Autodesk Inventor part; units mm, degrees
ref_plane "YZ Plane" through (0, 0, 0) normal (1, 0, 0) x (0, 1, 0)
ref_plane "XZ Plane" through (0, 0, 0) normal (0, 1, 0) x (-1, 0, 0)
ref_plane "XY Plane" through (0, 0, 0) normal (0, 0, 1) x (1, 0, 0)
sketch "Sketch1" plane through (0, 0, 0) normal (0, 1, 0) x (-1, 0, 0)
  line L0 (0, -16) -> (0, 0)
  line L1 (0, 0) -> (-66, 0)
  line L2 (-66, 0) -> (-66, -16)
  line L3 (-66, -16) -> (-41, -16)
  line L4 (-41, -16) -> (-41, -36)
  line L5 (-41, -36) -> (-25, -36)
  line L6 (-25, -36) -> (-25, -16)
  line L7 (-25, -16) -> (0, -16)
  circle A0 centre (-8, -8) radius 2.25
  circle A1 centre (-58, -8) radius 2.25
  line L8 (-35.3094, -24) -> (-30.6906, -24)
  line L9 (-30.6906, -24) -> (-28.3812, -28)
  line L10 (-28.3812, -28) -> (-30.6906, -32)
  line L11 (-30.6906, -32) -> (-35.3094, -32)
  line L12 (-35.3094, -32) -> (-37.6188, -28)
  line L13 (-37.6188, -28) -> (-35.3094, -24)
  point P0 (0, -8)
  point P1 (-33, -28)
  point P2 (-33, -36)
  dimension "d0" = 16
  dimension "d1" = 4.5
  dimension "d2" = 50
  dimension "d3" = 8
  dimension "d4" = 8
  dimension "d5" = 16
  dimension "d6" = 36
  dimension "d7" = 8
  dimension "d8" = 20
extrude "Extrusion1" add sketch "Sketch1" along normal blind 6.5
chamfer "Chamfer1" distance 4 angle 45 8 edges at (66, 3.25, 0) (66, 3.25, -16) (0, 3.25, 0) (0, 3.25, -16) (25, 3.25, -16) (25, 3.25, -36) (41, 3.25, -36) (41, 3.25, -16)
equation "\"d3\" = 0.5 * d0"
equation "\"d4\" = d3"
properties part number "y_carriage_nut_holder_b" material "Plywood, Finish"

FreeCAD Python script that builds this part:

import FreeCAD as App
import Part
import Sketcher
from FreeCAD import Vector
Q = App.Units.Quantity


def edges_at(feature, points):
    """Names of the edges that pass closest to the given points."""
    edges = feature.Shape.Edges
    near = lambda p: min(range(len(edges)), key=lambda i: edges[i].distToShape(Part.Vertex(*p))[0])
    return sorted({f"Edge{near(p) + 1}" for p in points})


def add_polygon(sketch, points):
    """Adds a closed chain of lines whose ends are joined by coincident constraints."""
    first, n = sketch.GeometryCount, len(points)
    for a, b in zip(points, points[1:] + points[:1]):
        sketch.addGeometry(Part.LineSegment(App.Vector(*a, 0), App.Vector(*b, 0)), False)
    for i in range(n):
        sketch.addConstraint(Sketcher.Constraint("Coincident", first + i, 2, first + (i + 1) % n, 1))

doc = App.newDocument("Part")
body = doc.addObject("PartDesign::Body", "Body")

# Sketch on XZ plane
sketch1 = body.newObject("Sketcher::SketchObject", "Sketch")
sketch1.AttachmentSupport = (doc.getObject("XZ_Plane"), [""])
sketch1.MapMode = "FlatFace"
add_polygon(sketch1, [(25, -16), (0, -16), (0, 0), (66, 0), (66, -16), (41, -16), (41, -36), (25, -36)])  # lines 0-7
add_polygon(sketch1, [(37.6, -28), (35.3, -24), (30.7, -24), (28.4, -28), (30.7, -32), (35.3, -32)])  # lines 8-13
sketch1.addGeometry(Part.Circle(Vector(58, -8, 0), Vector(0, 0, 1), 2.2), False)  # 14
sketch1.addGeometry(Part.Circle(Vector(8, -8, 0), Vector(0, 0, 1), 2.2), False)  # 15
sketch1.addConstraint([
    Sketcher.Constraint("Horizontal", 0),
    Sketcher.Constraint("Vertical", 1),
    Sketcher.Constraint("Horizontal", 2),
    Sketcher.Constraint("Vertical", 3),
    Sketcher.Constraint("Horizontal", 4),
    Sketcher.Constraint("Vertical", 5),
    Sketcher.Constraint("Horizontal", 6),
    Sketcher.Constraint("Vertical", 7),
    Sketcher.Constraint("Horizontal", 9),
    Sketcher.Constraint("Horizontal", 12),
    Sketcher.Constraint("Coincident", 1, 2, -1, 1),
    Sketcher.Constraint("Equal", 14, 15),
    Sketcher.Constraint("Parallel", 8, 11),
    Sketcher.Constraint("Parallel", 10, 13),
    Sketcher.Constraint("Horizontal", 14, 3, 15, 3),
    Sketcher.Constraint("Horizontal", 0, 2, 3, 2),
    Sketcher.Constraint("Horizontal", 10, 2, 13, 2),
    Sketcher.Constraint("Vertical", 9, 2, 11, 2),
    Sketcher.Constraint("Vertical", 8, 2, 12, 2),
    Sketcher.Constraint("Equal", 0, 4),
    Sketcher.Constraint("Equal", 6, 1),
    Sketcher.Constraint("Diameter", 14, Q("4.5 mm")),
    Sketcher.Constraint("DistanceX", 6, 2, 6, 1, Q("16 mm")),
    Sketcher.Constraint("DistanceY", 5, 2, 5, 1, Q("20 mm")),
    Sketcher.Constraint("DistanceY", 14, 3, -1, 1, Q("8 mm")),
    Sketcher.Constraint("DistanceX", -1, 1, 15, 3, Q("8 mm")),
    Sketcher.Constraint("DistanceX", 15, 3, 14, 3, Q("50 mm")),
    Sketcher.Constraint("DistanceX", 14, 3, 2, 2, Q("8 mm")),
    Sketcher.Constraint("DistanceY", 8, 2, 4, 2, Q("8 mm")),
    Sketcher.Constraint("DistanceY", 6, 2, 10, 2, Q("8 mm")),
    Sketcher.Constraint("Angle", 8, Q("120 deg")),
    Sketcher.Constraint("DistanceX", 9, 2, 9, 1, Q("4.6188 mm")),
    Sketcher.Constraint("DistanceX", -1, 1, 8, 2, Q("35.3094 mm")),
])
pad1 = body.newObject("PartDesign::Pad", "Pad")
pad1.Profile = sketch1
pad1.Length = 6.5
pad1.Reversed = True
doc.recompute()

chamfer = body.newObject("PartDesign::Chamfer", "Chamfer")
chamfer.Base = (pad1, edges_at(pad1, [
    (66, 3.25, 0),
    (66, 3.25, -16),
    (0, 3.25, 0),
    (0, 3.25, -16),
    (25, 3.25, -16),
    (25, 3.25, -36),
    (41, 3.25, -36),
    (41, 3.25, -16),
]))
chamfer.Size = 4

doc.recompute()
